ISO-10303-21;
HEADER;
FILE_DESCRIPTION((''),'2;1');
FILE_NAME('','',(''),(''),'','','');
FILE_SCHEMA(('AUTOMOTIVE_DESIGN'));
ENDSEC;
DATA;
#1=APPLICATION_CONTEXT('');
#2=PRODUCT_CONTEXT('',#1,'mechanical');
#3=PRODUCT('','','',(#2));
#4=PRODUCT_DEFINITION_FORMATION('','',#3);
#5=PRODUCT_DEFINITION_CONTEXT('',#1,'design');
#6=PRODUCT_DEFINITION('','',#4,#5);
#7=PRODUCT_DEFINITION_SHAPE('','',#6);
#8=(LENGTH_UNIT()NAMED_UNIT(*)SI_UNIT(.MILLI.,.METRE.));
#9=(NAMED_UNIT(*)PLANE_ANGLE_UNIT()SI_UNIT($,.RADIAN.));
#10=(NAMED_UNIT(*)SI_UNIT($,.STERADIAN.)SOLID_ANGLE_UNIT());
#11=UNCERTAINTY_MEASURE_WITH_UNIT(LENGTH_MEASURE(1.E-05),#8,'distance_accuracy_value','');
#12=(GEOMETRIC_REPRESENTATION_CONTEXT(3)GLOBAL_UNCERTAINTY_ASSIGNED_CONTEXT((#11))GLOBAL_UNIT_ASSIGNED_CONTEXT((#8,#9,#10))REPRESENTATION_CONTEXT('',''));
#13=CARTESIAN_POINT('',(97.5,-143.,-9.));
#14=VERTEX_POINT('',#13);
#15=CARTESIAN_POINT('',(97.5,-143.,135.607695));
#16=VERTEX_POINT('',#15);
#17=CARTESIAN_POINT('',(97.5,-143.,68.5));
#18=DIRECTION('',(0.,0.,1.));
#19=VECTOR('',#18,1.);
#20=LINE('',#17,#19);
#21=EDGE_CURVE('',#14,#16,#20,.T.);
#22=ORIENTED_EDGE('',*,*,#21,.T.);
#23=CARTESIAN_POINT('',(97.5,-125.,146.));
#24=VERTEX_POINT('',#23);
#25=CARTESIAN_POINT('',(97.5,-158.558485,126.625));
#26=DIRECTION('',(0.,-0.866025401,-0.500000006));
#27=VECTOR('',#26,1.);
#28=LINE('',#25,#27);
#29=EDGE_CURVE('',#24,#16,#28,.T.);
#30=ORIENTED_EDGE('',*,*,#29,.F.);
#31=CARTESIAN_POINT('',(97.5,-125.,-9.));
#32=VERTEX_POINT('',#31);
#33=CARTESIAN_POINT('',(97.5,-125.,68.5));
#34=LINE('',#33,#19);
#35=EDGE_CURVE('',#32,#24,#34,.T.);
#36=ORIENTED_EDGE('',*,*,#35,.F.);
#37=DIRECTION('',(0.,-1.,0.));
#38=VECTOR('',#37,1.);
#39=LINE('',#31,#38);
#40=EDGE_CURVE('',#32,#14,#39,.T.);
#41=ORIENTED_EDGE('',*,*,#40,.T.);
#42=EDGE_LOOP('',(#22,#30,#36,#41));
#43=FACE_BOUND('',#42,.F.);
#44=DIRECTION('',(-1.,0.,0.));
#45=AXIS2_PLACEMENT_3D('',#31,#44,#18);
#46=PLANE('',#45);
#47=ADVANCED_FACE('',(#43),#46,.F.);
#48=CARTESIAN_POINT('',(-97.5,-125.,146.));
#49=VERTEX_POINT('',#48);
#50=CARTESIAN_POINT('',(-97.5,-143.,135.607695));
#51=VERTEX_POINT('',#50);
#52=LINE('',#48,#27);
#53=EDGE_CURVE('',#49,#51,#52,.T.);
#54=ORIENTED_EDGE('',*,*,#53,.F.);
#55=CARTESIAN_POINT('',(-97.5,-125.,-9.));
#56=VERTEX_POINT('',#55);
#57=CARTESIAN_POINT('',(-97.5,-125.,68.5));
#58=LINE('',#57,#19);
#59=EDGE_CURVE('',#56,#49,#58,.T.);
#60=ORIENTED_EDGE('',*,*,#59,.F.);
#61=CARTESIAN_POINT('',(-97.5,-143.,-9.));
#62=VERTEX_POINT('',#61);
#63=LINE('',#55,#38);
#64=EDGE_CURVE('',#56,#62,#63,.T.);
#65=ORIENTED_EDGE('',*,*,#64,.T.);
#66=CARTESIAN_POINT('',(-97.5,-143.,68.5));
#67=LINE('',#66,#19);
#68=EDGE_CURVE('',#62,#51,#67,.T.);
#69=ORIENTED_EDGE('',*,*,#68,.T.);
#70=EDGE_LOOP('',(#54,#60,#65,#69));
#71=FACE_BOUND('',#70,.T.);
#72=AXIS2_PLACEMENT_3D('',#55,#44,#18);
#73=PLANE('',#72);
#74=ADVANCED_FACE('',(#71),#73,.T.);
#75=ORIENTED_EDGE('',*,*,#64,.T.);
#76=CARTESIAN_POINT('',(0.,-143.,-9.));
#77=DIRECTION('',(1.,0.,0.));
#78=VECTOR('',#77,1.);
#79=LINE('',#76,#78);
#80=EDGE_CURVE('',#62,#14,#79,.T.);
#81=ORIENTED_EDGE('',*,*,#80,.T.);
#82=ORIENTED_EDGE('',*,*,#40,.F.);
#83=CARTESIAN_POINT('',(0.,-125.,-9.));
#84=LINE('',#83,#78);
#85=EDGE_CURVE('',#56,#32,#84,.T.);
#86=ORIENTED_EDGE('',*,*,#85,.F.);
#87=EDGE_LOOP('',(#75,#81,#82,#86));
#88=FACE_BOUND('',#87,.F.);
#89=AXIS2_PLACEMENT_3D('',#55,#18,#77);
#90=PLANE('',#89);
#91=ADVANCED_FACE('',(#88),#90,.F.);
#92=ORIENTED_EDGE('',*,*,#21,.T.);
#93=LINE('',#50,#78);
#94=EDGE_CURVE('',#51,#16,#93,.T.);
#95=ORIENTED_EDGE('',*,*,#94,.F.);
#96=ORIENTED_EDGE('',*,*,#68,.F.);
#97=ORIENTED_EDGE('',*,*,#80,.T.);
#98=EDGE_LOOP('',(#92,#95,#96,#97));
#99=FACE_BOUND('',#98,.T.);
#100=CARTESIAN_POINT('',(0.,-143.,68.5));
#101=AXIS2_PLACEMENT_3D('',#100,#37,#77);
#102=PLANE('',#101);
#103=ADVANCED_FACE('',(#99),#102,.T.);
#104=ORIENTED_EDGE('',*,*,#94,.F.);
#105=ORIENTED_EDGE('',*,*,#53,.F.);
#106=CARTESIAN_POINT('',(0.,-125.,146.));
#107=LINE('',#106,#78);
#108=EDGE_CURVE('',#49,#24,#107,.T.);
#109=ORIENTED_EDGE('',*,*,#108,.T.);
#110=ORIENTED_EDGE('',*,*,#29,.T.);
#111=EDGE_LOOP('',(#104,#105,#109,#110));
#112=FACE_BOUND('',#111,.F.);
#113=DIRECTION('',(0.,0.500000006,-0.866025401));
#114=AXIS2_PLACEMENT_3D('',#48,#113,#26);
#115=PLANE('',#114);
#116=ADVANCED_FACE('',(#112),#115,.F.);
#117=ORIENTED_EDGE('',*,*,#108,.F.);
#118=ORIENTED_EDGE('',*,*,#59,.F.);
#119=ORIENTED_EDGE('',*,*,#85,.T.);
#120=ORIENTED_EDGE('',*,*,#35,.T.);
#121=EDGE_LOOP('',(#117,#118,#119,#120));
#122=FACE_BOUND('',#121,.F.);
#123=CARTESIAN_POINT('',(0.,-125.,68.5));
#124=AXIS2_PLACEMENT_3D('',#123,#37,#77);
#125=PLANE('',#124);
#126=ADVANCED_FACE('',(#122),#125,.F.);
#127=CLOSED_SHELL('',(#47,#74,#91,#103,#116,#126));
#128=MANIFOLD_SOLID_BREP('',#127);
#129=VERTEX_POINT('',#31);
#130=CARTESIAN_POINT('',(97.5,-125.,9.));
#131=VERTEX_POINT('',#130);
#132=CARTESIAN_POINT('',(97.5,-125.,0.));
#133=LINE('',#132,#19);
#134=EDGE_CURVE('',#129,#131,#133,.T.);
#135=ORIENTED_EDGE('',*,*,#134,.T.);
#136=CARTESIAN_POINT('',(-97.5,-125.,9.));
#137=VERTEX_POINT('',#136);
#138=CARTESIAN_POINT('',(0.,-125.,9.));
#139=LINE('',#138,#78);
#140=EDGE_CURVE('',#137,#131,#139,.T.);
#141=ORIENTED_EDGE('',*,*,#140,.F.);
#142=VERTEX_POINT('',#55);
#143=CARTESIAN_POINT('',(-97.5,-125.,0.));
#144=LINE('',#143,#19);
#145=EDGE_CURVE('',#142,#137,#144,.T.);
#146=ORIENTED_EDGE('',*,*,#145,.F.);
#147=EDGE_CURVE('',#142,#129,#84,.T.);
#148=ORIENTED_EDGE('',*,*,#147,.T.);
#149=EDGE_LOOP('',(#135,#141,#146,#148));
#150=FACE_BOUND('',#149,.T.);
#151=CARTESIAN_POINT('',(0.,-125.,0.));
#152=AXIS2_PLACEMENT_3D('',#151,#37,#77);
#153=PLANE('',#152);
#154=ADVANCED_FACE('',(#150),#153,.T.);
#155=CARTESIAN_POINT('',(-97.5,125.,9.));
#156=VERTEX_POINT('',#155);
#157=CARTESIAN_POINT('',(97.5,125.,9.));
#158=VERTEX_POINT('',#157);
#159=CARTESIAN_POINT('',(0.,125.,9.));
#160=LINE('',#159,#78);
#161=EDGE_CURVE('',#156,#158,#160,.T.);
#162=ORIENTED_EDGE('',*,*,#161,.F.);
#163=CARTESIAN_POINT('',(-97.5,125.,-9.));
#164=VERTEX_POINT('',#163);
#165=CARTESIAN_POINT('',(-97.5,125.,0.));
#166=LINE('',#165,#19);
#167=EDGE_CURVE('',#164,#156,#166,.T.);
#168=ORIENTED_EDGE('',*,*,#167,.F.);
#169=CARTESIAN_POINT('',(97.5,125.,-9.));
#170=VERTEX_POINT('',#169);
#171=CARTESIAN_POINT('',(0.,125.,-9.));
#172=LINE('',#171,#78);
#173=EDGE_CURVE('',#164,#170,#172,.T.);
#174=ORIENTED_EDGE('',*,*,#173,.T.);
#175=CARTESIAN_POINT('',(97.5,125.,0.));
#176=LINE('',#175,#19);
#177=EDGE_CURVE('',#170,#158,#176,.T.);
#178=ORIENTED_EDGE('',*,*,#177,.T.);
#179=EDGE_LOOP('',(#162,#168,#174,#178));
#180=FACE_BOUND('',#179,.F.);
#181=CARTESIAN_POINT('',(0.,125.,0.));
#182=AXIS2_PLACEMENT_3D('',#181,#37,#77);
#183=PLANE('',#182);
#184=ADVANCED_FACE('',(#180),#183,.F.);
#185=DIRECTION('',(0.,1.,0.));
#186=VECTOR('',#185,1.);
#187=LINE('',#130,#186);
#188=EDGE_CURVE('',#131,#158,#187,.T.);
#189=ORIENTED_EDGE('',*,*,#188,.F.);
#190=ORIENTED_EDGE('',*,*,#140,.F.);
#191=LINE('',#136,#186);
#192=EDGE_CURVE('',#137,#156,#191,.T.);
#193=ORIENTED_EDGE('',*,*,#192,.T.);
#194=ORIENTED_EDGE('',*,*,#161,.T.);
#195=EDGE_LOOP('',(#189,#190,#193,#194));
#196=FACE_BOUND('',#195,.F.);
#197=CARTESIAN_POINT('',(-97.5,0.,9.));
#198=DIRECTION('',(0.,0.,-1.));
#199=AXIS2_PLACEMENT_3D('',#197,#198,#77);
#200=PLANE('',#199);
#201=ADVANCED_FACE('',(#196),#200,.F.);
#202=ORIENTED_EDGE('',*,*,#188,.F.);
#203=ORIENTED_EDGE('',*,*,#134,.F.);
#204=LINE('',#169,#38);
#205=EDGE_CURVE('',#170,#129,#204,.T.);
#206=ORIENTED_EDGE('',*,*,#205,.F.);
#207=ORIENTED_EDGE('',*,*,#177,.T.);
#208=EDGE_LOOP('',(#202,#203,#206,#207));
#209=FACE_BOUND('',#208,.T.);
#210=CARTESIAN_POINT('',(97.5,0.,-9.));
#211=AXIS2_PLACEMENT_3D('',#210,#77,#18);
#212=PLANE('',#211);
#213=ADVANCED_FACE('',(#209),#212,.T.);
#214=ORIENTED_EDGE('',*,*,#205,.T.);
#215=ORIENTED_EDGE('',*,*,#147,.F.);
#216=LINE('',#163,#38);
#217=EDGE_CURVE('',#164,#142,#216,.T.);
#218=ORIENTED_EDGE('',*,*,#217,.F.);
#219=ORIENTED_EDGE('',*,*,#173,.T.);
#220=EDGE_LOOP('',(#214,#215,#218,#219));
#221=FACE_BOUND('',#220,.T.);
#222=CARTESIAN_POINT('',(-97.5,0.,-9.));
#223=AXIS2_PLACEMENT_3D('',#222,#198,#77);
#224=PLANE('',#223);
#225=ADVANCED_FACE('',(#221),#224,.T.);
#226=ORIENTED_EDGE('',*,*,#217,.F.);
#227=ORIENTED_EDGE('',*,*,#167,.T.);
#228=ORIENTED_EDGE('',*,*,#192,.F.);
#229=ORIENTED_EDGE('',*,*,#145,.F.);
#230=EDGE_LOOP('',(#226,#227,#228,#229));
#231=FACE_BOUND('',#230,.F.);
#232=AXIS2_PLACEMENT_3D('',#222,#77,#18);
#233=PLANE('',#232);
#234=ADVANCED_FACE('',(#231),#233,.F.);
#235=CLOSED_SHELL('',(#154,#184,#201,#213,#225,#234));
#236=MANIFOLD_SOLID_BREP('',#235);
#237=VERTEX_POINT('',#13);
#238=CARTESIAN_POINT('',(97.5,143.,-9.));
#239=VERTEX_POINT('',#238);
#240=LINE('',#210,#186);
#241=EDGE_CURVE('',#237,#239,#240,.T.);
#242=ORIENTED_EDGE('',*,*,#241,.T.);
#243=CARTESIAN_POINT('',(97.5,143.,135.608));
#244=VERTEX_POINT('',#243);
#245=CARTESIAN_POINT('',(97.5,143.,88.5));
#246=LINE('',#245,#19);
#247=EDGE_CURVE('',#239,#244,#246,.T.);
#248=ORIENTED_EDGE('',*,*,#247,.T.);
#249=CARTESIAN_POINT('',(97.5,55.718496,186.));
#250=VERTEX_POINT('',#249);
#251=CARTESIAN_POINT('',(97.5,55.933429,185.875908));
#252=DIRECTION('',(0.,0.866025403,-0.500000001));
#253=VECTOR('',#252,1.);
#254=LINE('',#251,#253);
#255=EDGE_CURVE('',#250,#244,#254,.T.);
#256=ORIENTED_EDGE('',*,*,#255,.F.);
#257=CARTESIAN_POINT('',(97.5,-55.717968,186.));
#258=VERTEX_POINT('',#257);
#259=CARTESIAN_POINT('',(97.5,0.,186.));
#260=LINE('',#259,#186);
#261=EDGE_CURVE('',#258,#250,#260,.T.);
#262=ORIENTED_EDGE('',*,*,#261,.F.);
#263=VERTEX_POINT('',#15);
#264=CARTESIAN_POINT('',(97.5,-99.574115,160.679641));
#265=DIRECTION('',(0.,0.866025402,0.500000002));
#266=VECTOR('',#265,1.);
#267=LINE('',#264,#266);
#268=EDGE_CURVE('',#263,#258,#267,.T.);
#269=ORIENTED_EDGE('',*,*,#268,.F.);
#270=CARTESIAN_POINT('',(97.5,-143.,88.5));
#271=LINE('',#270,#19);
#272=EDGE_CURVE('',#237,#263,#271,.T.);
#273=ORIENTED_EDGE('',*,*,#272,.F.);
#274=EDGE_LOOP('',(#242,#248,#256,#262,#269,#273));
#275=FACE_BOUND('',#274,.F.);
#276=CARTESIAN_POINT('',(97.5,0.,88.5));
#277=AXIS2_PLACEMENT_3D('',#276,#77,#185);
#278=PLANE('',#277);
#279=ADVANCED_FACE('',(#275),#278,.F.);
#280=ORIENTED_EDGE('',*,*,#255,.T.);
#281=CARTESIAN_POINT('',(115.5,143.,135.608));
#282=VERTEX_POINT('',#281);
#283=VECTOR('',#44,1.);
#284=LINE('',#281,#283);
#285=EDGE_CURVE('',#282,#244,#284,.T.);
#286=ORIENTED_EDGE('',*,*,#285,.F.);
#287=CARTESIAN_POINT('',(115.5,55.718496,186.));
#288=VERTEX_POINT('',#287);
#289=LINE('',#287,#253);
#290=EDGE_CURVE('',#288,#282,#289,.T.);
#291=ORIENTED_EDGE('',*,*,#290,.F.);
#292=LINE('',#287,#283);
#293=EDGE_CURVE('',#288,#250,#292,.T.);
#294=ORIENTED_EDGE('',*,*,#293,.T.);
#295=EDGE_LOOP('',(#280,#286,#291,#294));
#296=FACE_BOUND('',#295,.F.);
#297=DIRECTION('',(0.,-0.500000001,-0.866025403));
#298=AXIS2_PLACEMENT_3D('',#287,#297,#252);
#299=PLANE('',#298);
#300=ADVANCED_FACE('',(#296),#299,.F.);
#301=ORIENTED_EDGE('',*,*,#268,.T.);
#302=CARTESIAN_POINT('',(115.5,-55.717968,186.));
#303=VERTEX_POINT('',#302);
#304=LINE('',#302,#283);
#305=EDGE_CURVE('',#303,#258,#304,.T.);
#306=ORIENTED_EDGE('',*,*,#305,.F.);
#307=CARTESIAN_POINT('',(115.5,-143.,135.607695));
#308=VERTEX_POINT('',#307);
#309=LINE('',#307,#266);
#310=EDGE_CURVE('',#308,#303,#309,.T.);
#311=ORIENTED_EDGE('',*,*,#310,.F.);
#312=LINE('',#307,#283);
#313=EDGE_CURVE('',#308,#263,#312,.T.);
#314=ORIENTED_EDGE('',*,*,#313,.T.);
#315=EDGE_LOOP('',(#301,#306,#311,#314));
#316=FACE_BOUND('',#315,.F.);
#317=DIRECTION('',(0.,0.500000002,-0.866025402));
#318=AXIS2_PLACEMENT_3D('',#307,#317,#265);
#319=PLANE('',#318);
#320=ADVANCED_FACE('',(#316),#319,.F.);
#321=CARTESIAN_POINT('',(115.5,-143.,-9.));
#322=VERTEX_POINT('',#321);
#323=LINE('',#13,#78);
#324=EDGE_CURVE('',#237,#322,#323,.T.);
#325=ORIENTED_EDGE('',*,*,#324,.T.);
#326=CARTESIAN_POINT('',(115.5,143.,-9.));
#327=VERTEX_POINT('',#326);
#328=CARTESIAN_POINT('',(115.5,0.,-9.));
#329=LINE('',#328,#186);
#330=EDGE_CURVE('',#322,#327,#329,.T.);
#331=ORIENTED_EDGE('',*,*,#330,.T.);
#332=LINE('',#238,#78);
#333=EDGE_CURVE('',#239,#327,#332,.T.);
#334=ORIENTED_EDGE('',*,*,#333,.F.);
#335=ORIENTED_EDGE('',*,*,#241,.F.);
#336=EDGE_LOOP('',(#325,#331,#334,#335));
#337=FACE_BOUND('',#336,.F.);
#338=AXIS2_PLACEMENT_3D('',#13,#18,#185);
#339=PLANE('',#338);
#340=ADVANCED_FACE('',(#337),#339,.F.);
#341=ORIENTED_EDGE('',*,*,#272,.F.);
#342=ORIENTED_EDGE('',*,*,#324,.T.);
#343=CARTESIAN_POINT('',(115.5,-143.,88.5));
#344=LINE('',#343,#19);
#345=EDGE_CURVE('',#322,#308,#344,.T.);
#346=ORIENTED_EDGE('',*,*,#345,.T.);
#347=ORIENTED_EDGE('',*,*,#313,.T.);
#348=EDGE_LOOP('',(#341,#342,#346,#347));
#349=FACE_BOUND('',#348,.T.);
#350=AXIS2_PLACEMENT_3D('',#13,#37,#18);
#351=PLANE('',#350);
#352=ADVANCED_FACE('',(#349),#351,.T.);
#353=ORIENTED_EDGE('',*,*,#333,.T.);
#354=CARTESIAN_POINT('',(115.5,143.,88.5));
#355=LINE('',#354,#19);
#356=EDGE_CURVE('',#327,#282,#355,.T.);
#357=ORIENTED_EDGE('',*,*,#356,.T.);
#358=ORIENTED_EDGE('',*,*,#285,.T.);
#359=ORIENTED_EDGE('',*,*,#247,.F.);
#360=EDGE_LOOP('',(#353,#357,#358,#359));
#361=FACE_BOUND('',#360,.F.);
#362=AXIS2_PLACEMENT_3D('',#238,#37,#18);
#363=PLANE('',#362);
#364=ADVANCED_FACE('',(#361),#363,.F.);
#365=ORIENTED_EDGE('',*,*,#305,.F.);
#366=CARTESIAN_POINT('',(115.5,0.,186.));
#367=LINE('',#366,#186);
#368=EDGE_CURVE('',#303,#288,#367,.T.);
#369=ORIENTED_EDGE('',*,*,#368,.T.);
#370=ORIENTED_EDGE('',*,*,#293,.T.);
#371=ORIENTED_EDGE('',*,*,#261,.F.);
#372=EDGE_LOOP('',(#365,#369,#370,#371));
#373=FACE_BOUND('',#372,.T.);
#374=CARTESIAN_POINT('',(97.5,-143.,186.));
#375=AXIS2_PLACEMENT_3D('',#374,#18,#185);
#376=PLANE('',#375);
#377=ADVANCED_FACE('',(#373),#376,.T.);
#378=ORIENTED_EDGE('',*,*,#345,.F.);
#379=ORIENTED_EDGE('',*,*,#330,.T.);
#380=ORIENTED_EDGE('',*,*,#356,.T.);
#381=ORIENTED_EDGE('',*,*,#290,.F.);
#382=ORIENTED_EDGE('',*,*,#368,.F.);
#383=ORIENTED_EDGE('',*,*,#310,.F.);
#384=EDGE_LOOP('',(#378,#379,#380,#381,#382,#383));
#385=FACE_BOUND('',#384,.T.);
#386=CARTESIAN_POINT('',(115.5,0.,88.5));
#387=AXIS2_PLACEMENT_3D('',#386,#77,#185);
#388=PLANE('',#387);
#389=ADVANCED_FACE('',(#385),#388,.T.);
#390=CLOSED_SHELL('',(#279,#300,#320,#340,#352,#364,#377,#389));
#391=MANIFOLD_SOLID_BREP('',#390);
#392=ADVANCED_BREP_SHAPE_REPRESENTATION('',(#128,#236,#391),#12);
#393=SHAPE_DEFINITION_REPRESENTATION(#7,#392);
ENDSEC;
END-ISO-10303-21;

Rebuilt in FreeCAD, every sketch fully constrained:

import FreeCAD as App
import Part
import Sketcher
from FreeCAD import Vector
Q = App.Units.Quantity


def add_polygon(sketch, points):
    """Adds a closed chain of lines whose ends are joined by coincident constraints."""
    first, n = sketch.GeometryCount, len(points)
    for a, b in zip(points, points[1:] + points[:1]):
        sketch.addGeometry(Part.LineSegment(App.Vector(*a, 0), App.Vector(*b, 0)), False)
    for i in range(n):
        sketch.addConstraint(Sketcher.Constraint("Coincident", first + i, 2, first + (i + 1) % n, 1))

doc = App.newDocument("Part")
body = doc.addObject("PartDesign::Body", "Body")

sketch1 = body.newObject("Sketcher::SketchObject", "Sketch")
sketch1.AttachmentSupport = (doc.getObject("XZ_Plane"), [""])
sketch1.MapMode = "FlatFace"
add_polygon(sketch1, [(-97.5, 9), (-97.5, -9), (97.5, -9), (97.5, 9)])
sketch1.addConstraint([
    Sketcher.Constraint("Vertical", 0),
    Sketcher.Constraint("Horizontal", 1),
    Sketcher.Constraint("Vertical", 2),
    Sketcher.Constraint("Horizontal", 3),
    Sketcher.Constraint("Symmetric", 0, 2, 2, 2, -1, 1),
    Sketcher.Constraint("DistanceX", 1, 1, 1, 2, Q("195 mm")),
    Sketcher.Constraint("DistanceY", 0, 2, 0, 1, Q("18 mm")),
])
pad1 = body.newObject("PartDesign::Pad", "Pad")
pad1.Profile = sketch1
pad1.Length = 250
pad1.Midplane = True
body2 = doc.addObject("PartDesign::Body", "Body001")

sketch2 = body2.newObject("Sketcher::SketchObject", "Sketch001")
sketch2.AttachmentSupport = (doc.getObject("XZ_Plane001"), [""])
sketch2.MapMode = "FlatFace"
sketch2.AttachmentOffset = App.Placement(Vector(0, 0, 125), App.Rotation())
add_polygon(sketch2, [(-97.5, 146), (-97.5, -9), (97.5, -9), (97.5, 146)])
sketch2.addConstraint([
    Sketcher.Constraint("Vertical", 0),
    Sketcher.Constraint("Horizontal", 1),
    Sketcher.Constraint("Vertical", 2),
    Sketcher.Constraint("Horizontal", 3),
    Sketcher.Constraint("DistanceX", 1, 1, 1, 2, Q("195 mm")),
    Sketcher.Constraint("DistanceY", 0, 2, 0, 1, Q("155 mm")),
    Sketcher.Constraint("DistanceY", 0, 2, -1, 1, Q("9 mm")),
    Sketcher.Constraint("DistanceX", 0, 2, -1, 1, Q("97.5 mm")),
])
pad2 = body2.newObject("PartDesign::Pad", "Pad001")
pad2.Profile = sketch2
pad2.Length = 18

sketch3 = body2.newObject("Sketcher::SketchObject", "Sketch002")
sketch3.AttachmentSupport = (doc.getObject("YZ_Plane001"), [""])
sketch3.MapMode = "FlatFace"
sketch3.AttachmentOffset = App.Placement(Vector(0, 0, -97.5), App.Rotation())
add_polygon(sketch3, [(-143, 146), (-125, 146), (-143, 135.607695)])
sketch3.addConstraint([
    Sketcher.Constraint("Horizontal", 0),
    Sketcher.Constraint("Vertical", 2),
    Sketcher.Constraint("DistanceX", 0, 1, 0, 2, Q("18 mm")),
    Sketcher.Constraint("Angle", 1, Q("-150 deg")),
    Sketcher.Constraint("DistanceX", 0, 2, -1, 1, Q("125 mm")),
    Sketcher.Constraint("DistanceY", -1, 1, 0, 2, Q("146 mm")),
])
pocket1 = body2.newObject("PartDesign::Pocket", "Pocket")
pocket1.Profile = sketch3
pocket1.Type = "ThroughAll"
pocket1.Reversed = True
body3 = doc.addObject("PartDesign::Body", "Body002")

sketch4 = body3.newObject("Sketcher::SketchObject", "Sketch003")
sketch4.AttachmentSupport = (doc.getObject("YZ_Plane002"), [""])
sketch4.MapMode = "FlatFace"
sketch4.AttachmentOffset = App.Placement(Vector(0, 0, 97.5), App.Rotation())
add_polygon(sketch4, [(-143, 186), (-143, -9), (143, -9), (143, 186)])
sketch4.addConstraint([
    Sketcher.Constraint("Vertical", 0),
    Sketcher.Constraint("Horizontal", 1),
    Sketcher.Constraint("Vertical", 2),
    Sketcher.Constraint("Horizontal", 3),
    Sketcher.Constraint("DistanceX", 1, 1, 1, 2, Q("286 mm")),
    Sketcher.Constraint("DistanceY", 0, 2, 0, 1, Q("195 mm")),
    Sketcher.Constraint("DistanceX", 0, 2, -1, 1, Q("143 mm")),
    Sketcher.Constraint("DistanceY", 0, 2, -1, 1, Q("9 mm")),
])
pad3 = body3.newObject("PartDesign::Pad", "Pad002")
pad3.Profile = sketch4
pad3.Length = 18

sketch5 = body3.newObject("Sketcher::SketchObject", "Sketch004")
sketch5.AttachmentSupport = (doc.getObject("YZ_Plane002"), [""])
sketch5.MapMode = "FlatFace"
sketch5.AttachmentOffset = App.Placement(Vector(0, 0, 115.5), App.Rotation())
add_polygon(sketch5, [(-143, 186), (-143, 135.607695), (-55.717968, 186)])
add_polygon(sketch5, [(55.718496, 186), (143, 135.608), (143, 186)])
sketch5.addConstraint([
    Sketcher.Constraint("Vertical", 0),
    Sketcher.Constraint("Horizontal", 2),
    Sketcher.Constraint("Vertical", 4),
    Sketcher.Constraint("Horizontal", 5),
    Sketcher.Constraint("Symmetric", 2, 2, 4, 2, -2),
    Sketcher.Constraint("Angle", 1, Q("30 deg")),
    Sketcher.Constraint("Angle", 3, Q("-30 deg")),
    Sketcher.Constraint("DistanceX", 0, 2, -1, 1, Q("143 mm")),
    Sketcher.Constraint("DistanceY", -1, 1, 1, 2, Q("186 mm")),
    Sketcher.Constraint("DistanceY", 4, 1, 4, 2, Q("50.392 mm")),
    Sketcher.Constraint("DistanceX", 2, 2, 2, 1, Q("87.282032 mm")),
])
pocket2 = body3.newObject("PartDesign::Pocket", "Pocket001")
pocket2.Profile = sketch5
pocket2.Type = "ThroughAll"

doc.recompute()
